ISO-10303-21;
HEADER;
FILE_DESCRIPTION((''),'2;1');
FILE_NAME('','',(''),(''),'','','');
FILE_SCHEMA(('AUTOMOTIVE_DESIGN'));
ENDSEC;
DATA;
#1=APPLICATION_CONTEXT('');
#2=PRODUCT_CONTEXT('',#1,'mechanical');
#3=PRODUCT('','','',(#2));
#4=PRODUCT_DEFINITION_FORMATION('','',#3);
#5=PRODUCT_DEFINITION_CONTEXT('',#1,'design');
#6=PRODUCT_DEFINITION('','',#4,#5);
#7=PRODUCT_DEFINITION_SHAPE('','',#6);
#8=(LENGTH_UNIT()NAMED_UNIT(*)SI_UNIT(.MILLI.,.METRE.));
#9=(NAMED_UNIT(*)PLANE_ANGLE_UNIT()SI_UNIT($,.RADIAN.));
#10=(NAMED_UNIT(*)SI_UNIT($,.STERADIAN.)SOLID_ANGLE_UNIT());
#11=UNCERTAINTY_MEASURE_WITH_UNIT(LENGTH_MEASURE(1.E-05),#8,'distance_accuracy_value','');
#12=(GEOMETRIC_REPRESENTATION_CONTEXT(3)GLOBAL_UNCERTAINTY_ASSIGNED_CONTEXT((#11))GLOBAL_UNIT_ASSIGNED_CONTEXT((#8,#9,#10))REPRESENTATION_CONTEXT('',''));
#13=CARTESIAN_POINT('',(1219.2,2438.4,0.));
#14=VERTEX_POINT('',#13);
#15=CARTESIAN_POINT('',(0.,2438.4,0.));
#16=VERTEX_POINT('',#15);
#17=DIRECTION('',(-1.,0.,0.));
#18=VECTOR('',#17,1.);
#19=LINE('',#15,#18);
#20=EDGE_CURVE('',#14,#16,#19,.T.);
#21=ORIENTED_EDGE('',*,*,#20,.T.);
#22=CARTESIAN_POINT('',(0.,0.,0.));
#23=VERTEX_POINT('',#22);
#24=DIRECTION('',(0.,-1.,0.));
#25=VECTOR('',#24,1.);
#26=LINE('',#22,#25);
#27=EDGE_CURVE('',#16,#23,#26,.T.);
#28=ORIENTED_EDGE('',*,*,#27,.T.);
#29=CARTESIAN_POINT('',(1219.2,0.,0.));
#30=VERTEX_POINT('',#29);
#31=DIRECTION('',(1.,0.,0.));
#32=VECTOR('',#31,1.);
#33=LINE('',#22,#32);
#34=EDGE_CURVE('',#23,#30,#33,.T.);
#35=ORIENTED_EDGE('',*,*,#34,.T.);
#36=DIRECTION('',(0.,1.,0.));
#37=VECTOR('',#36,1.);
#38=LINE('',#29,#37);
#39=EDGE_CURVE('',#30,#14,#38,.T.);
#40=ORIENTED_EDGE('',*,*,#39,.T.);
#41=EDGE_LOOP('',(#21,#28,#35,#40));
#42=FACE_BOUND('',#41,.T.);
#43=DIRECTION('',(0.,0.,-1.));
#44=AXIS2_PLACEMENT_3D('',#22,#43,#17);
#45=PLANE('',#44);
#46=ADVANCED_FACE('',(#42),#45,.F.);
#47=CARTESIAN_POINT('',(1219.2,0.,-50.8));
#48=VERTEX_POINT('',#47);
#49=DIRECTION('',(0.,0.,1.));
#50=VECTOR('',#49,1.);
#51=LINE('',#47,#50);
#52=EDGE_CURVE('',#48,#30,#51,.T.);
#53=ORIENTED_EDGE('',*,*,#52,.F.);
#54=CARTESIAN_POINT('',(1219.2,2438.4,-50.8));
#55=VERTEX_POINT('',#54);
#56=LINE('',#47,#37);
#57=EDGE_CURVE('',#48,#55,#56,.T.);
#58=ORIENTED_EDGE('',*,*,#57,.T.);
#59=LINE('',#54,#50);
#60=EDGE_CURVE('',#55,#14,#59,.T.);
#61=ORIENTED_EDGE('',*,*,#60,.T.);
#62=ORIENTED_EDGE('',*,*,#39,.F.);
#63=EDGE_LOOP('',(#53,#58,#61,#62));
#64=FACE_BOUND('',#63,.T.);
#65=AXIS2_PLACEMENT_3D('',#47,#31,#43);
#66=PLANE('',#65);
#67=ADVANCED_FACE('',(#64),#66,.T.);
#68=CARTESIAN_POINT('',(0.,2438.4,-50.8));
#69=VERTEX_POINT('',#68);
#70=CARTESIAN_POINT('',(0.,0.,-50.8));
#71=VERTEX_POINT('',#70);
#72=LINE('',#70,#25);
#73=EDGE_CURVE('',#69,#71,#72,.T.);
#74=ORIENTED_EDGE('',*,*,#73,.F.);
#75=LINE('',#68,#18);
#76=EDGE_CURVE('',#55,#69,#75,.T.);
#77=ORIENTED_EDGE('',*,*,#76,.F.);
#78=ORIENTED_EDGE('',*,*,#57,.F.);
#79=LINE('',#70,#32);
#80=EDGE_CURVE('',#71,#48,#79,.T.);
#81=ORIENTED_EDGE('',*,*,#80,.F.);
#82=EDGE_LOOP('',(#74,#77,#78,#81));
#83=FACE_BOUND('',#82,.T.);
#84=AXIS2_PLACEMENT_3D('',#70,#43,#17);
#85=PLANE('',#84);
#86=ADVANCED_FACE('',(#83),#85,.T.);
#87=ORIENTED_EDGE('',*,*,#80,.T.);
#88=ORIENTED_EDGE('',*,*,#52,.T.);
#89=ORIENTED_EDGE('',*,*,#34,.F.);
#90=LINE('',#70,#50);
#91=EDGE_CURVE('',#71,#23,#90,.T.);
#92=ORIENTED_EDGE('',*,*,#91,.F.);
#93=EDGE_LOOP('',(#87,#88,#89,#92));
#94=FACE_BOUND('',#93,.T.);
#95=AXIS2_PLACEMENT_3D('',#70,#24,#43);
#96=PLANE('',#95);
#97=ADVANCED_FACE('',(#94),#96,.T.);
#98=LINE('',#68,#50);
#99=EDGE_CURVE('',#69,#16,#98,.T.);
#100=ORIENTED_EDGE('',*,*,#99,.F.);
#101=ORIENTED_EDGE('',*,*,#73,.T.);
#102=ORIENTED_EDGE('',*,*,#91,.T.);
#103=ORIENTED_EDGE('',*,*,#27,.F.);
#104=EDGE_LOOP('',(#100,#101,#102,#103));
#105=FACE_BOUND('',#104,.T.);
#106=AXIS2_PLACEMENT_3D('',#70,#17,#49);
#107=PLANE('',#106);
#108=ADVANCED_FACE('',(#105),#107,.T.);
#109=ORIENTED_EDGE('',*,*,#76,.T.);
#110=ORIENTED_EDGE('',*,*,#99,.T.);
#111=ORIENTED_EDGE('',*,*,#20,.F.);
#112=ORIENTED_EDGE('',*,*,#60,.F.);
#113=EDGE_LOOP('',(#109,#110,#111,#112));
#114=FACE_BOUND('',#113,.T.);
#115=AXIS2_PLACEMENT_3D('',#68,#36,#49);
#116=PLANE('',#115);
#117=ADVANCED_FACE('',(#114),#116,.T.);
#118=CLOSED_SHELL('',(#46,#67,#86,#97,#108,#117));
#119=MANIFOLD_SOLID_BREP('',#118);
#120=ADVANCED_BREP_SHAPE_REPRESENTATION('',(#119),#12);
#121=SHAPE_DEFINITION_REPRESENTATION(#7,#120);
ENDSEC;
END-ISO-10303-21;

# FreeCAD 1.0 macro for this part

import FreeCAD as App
import Part
import Sketcher
from FreeCAD import Vector
Q = App.Units.Quantity

doc = App.newDocument("Part")
body = doc.addObject("PartDesign::Body", "Body")

# Sketch on XY plane
sketch1 = doc.addObject("Sketcher::SketchObject", "Sketch")
body.addObject(sketch1)
sketch1.AttachmentSupport = (doc.XY_Plane, [""])
sketch1.MapMode = "FlatFace"
sketch1.addGeometry(Part.LineSegment(Vector(0, 2438.4, 0), Vector(0, 0, 0)), False)
sketch1.addGeometry(Part.LineSegment(Vector(0, 0, 0), Vector(1219.2, 0, 0)), False)
sketch1.addGeometry(Part.LineSegment(Vector(1219.2, 0, 0), Vector(1219.2, 2438.4, 0)), False)
sketch1.addGeometry(Part.LineSegment(Vector(1219.2, 2438.4, 0), Vector(0, 2438.4, 0)), False)
sketch1.addConstraint(Sketcher.Constraint("Coincident", 0, 2, 1, 1))
sketch1.addConstraint(Sketcher.Constraint("Coincident", 1, 2, 2, 1))
sketch1.addConstraint(Sketcher.Constraint("Coincident", 2, 2, 3, 1))
sketch1.addConstraint(Sketcher.Constraint("Coincident", 3, 2, 0, 1))
sketch1.addConstraint(Sketcher.Constraint("Vertical", 0))
sketch1.addConstraint(Sketcher.Constraint("Horizontal", 1))
sketch1.addConstraint(Sketcher.Constraint("Vertical", 2))
sketch1.addConstraint(Sketcher.Constraint("Horizontal", 3))
sketch1.addConstraint(Sketcher.Constraint("Coincident", 0, 2, -1, 1))
sketch1.addConstraint(Sketcher.Constraint("DistanceX", 1, 1, 1, 2, Q("48 in")))
sketch1.addConstraint(Sketcher.Constraint("DistanceY", 0, 2, 0, 1, Q("96 in")))
pad1 = doc.addObject("PartDesign::Pad", "Pad")
body.addObject(pad1)
pad1.Profile = sketch1
pad1.Length = Q("2 in")
pad1.Reversed = True

doc.recompute()
